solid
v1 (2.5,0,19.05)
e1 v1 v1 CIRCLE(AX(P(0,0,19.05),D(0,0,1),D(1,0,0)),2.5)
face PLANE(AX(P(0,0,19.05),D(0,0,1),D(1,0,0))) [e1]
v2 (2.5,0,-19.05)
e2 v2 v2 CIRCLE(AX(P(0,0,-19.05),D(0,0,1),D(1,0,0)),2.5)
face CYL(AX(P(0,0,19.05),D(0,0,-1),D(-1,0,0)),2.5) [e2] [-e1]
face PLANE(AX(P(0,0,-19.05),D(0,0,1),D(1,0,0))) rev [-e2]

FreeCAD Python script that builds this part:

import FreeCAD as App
import Part
import Sketcher
Q = App.Units.Quantity

doc = App.newDocument("Part")
body = doc.addObject("PartDesign::Body", "Body")

# Sketch on XY plane
sketch1 = body.newObject("Sketcher::SketchObject", "Sketch")
sketch1.AttachmentSupport = (doc.getObject("XY_Plane"), [""])
sketch1.MapMode = "FlatFace"
sketch1.addGeometry(Part.Circle(App.Vector(0, 0, 0), App.Vector(0, 0, 1), 2.5), False)
sketch1.addConstraint([
    Sketcher.Constraint("Coincident", 0, 3, -1, 1),
    Sketcher.Constraint("Diameter", 0, Q("5 mm")),
])
pad1 = body.newObject("PartDesign::Pad", "Pad")
pad1.Profile = sketch1
pad1.Length = 38.1
pad1.Midplane = True

doc.recompute()
